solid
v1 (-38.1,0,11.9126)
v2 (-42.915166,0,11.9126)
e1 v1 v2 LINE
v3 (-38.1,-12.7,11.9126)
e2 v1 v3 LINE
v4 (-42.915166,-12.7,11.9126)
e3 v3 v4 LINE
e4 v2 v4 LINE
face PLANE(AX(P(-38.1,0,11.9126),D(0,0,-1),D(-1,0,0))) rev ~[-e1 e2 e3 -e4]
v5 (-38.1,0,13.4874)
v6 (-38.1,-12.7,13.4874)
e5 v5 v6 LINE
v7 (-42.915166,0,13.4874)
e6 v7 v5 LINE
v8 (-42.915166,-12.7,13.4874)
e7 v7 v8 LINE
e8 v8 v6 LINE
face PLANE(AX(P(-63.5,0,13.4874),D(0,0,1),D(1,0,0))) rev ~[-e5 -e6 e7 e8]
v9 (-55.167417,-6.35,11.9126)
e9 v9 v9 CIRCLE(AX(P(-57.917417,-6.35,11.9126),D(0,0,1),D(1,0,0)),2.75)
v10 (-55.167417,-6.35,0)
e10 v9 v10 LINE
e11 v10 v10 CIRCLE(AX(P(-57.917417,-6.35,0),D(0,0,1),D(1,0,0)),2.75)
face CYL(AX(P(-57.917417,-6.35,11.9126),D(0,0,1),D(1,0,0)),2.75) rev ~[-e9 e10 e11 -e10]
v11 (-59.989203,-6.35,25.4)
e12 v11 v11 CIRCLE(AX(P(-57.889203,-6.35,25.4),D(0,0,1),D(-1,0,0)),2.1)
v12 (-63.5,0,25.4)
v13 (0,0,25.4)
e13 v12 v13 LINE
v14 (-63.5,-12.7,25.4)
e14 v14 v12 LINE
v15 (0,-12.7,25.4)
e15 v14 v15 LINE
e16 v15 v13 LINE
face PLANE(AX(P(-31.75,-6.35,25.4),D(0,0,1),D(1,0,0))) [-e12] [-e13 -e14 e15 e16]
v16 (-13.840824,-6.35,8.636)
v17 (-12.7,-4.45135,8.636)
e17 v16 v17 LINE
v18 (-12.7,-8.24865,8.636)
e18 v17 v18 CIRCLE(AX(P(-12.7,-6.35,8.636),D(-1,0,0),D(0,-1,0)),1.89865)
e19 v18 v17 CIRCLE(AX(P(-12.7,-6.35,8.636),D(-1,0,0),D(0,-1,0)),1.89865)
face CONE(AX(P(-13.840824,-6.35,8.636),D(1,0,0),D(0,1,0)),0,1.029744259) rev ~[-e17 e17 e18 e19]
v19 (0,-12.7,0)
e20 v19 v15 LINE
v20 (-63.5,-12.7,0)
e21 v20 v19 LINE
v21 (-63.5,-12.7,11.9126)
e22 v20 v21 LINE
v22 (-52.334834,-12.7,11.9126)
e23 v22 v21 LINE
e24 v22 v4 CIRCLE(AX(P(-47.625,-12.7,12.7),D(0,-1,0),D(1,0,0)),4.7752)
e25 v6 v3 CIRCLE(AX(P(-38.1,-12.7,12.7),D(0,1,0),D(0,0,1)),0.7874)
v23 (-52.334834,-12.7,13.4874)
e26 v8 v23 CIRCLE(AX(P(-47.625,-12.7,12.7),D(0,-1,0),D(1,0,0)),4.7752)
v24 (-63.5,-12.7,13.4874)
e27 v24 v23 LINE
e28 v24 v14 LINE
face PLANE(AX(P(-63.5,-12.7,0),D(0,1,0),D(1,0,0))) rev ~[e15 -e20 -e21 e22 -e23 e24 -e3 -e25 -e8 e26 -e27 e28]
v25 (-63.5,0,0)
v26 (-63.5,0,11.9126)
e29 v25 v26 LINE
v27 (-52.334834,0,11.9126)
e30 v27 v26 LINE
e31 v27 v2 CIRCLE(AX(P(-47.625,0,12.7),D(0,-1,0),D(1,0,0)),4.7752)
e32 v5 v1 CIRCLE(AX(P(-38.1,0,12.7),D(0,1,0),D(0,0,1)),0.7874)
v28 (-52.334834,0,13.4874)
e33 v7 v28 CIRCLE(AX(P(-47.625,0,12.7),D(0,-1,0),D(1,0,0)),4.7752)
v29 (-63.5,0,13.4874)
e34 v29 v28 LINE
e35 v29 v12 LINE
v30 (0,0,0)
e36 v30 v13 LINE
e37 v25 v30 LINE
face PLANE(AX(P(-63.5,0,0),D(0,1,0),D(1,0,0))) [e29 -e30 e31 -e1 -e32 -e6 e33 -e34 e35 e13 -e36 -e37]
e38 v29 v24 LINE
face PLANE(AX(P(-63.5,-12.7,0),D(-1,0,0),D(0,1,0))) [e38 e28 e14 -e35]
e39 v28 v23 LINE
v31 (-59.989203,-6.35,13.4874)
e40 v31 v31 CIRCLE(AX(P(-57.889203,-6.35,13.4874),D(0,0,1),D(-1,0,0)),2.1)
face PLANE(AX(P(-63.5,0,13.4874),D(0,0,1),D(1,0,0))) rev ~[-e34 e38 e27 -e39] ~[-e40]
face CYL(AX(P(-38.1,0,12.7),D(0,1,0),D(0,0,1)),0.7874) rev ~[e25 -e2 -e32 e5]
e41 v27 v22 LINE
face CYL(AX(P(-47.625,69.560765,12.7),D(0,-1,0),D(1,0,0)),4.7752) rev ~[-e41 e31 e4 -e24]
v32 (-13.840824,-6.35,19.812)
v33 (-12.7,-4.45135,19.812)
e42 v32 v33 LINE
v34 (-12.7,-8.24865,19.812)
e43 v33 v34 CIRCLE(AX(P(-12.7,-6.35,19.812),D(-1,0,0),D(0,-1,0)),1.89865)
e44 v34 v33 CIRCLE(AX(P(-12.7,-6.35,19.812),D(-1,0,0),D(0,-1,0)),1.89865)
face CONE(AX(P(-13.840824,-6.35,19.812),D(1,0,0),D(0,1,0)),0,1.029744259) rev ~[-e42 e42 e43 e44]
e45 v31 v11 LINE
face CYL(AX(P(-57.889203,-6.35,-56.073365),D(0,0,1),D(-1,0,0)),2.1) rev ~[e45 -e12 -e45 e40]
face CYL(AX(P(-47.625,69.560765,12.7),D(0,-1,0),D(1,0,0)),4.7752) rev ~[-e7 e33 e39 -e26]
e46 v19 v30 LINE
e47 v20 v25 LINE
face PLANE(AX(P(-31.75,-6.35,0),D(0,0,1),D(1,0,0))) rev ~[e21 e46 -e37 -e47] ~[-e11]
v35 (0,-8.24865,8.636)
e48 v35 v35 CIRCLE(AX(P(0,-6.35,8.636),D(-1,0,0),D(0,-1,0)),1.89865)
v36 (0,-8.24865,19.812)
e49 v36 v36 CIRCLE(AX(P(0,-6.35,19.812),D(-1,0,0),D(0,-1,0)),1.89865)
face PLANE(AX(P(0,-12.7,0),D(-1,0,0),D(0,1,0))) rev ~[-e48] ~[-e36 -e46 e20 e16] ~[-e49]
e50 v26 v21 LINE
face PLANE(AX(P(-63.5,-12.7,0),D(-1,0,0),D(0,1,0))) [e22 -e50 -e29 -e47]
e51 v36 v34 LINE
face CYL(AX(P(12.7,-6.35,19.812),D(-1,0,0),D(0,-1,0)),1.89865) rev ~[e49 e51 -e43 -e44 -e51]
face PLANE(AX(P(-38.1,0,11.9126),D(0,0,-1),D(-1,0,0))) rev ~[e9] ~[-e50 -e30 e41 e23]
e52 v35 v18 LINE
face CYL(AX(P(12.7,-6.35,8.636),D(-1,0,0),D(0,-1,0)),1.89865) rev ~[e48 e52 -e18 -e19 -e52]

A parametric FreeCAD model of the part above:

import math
import FreeCAD as App
import Part
import Sketcher

V = App.Vector
Q = App.Units.Quantity

doc = App.newDocument("Part")
body = doc.addObject("PartDesign::Body", "Body")

sketch1 = body.newObject("Sketcher::SketchObject", "Sketch")
sketch1.AttachmentSupport = (doc.getObject("XY_Plane"), [""])
sketch1.MapMode = "FlatFace"
sketch1.addGeometry([
    Part.LineSegment(V(-64, 0, 0), V(-64, -13, 0)),
    Part.LineSegment(V(-64, -13, 0), V(0, -13, 0)),
    Part.LineSegment(V(0, -13, 0), V(0, 0, 0)),
    Part.LineSegment(V(0, 0, 0), V(-64, 0, 0)),
], False)
sketch1.addConstraint([
    Sketcher.Constraint("Coincident", 0, 2, 1, 1),
    Sketcher.Constraint("Coincident", 1, 2, 2, 1),
    Sketcher.Constraint("Coincident", 2, 2, 3, 1),
    Sketcher.Constraint("Coincident", 3, 2, 0, 1),
    Sketcher.Constraint("Vertical", 0),
    Sketcher.Constraint("Horizontal", 1),
    Sketcher.Constraint("Vertical", 2),
    Sketcher.Constraint("Horizontal", 3),
    Sketcher.Constraint("Coincident", 2, 2, -1, 1),
    Sketcher.Constraint("DistanceX", 1, 1, 1, 2, Q("2.5 in")),
    Sketcher.Constraint("DistanceY", 0, 2, 0, 1, Q("0.5 in")),
])
pad1 = body.newObject("PartDesign::Pad", "Pad")
pad1.Profile = sketch1
pad1.Length = Q("1 in")

sketch2 = body.newObject("Sketcher::SketchObject", "Sketch001")
sketch2.AttachmentSupport = (doc.getObject("YZ_Plane"), [""])
sketch2.MapMode = "FlatFace"
sketch2.addGeometry(Part.Circle(V(-6.3, 19.8, 0), V(0, 0, 1), 1.9), False)
sketch2.addConstraint([
    Sketcher.Constraint("Diameter", 0, Q("0.1495 in")),
    Sketcher.Constraint("DistanceX", 0, 3, -1, 1, Q("0.25 in")),
    Sketcher.Constraint("DistanceY", -1, 1, 0, 3, Q("0.78 in")),
])
doc.recompute()
hole = body.newObject("PartDesign::Hole", "Hole")
hole.Profile = sketch2
hole.ThreadType = "None"
hole.Diameter = Q("0.1495 in")
hole.DepthType = "Dimension"
hole.Depth = Q("0.5 in")
hole.DrillPoint = "Angled"
hole.DrillPointAngle = 118

sketch3 = body.newObject("Sketcher::SketchObject", "Sketch002")
sketch3.AttachmentSupport = (doc.getObject("YZ_Plane"), [""])
sketch3.MapMode = "FlatFace"
sketch3.addGeometry(Part.Circle(V(-6.3, 8.6, 0), V(0, 0, 1), 1.9), False)
sketch3.addConstraint([
    Sketcher.Constraint("Diameter", 0, Q("0.1495 in")),
    Sketcher.Constraint("DistanceX", 0, 3, -1, 1, Q("0.25 in")),
    Sketcher.Constraint("DistanceY", -1, 1, 0, 3, Q("0.34 in")),
])
doc.recompute()
hole2 = body.newObject("PartDesign::Hole", "Hole001")
hole2.Profile = sketch3
hole2.ThreadType = "None"
hole2.Diameter = Q("0.1495 in")
hole2.DepthType = "Dimension"
hole2.Depth = Q("0.5 in")
hole2.DrillPoint = "Angled"
hole2.DrillPointAngle = 118

sketch4 = body.newObject("Sketcher::SketchObject", "Sketch003")
sketch4.AttachmentSupport = (doc.getObject("XZ_Plane"), [""])
sketch4.MapMode = "FlatFace"
sketch4.addGeometry(Part.Circle(V(-47.6, 12.7, 0), V(0, 0, 1), 4.8), False)
sketch4.addConstraint([
    Sketcher.Constraint("Diameter", 0, Q("0.376 in")),
    Sketcher.Constraint("DistanceY", -1, 1, 0, 3, Q("0.5 in")),
    Sketcher.Constraint("DistanceX", 0, 3, -1, 1, Q("1.875 in")),
])
doc.recompute()
hole3 = body.newObject("PartDesign::Hole", "Hole002")
hole3.Profile = sketch4
hole3.ThreadType = "None"
hole3.Diameter = Q("0.376 in")
hole3.DepthType = "ThroughAll"
hole3.Reversed = True

sketch5 = body.newObject("Sketcher::SketchObject", "Sketch004")
sketch5.AttachmentSupport = (doc.getObject("XZ_Plane"), [""])
sketch5.MapMode = "FlatFace"
sketch5.addGeometry([
    Part.ArcOfCircle(Part.Circle(V(-38.1, 12.7, 0), V(0, 0, 1), 0.8), math.radians(-90), math.radians(90)),
    Part.LineSegment(V(-38.1, 11.9, 0), V(-63.5, 11.9, 0)),
    Part.LineSegment(V(-63.5, 11.9, 0), V(-63.5, 13.5, 0)),
    Part.LineSegment(V(-63.5, 13.5, 0), V(-38.1, 13.5, 0)),
], False)
sketch5.addConstraint([
    Sketcher.Constraint("Tangent", 0, 1, 1, 1),
    Sketcher.Constraint("Coincident", 1, 2, 2, 1),
    Sketcher.Constraint("Coincident", 2, 2, 3, 1),
    Sketcher.Constraint("Tangent", 3, 2, 0, 2),
    Sketcher.Constraint("Horizontal", 1),
    Sketcher.Constraint("Vertical", 2),
    Sketcher.Constraint("Horizontal", 3),
    Sketcher.Constraint("DistanceX", 1, 2, 1, 1, Q("1 in")),
    Sketcher.Constraint("Radius", 0, Q("0.031 in")),
    Sketcher.Constraint("DistanceX", 0, 3, -1, 1, Q("1.5 in")),
    Sketcher.Constraint("DistanceY", -1, 1, 0, 3, Q("0.5 in")),
])
pocket1 = body.newObject("PartDesign::Pocket", "Pocket")
pocket1.Profile = sketch5
pocket1.Type = "ThroughAll"
pocket1.Reversed = True

sketch6 = body.newObject("Sketcher::SketchObject", "Sketch005")
sketch6.AttachmentSupport = (doc.getObject("XY_Plane"), [""])
sketch6.MapMode = "FlatFace"
sketch6.AttachmentOffset = App.Placement(V(0, 0, 0.469 * 25.4), App.Rotation())
sketch6.addGeometry(Part.Circle(V(-57.9, -6.3, 0), V(0, 0, 1), 2.8), False)
sketch6.addConstraint([
    Sketcher.Constraint("Diameter", 0, Q("5.5 mm")),
    Sketcher.Constraint("DistanceY", 0, 3, -1, 1, Q("0.25 in")),
    Sketcher.Constraint("DistanceX", 0, 3, -1, 1, Q("57.917417 mm")),
])
pocket2 = body.newObject("PartDesign::Pocket", "Pocket001")
pocket2.Profile = sketch6
pocket2.Type = "ThroughAll"

sketch7 = body.newObject("Sketcher::SketchObject", "Sketch006")
sketch7.AttachmentSupport = (doc.getObject("XY_Plane"), [""])
sketch7.MapMode = "FlatFace"
sketch7.AttachmentOffset = App.Placement(V(0, 0, 0.531 * 25.4), App.Rotation())
sketch7.addGeometry(Part.Circle(V(-57.9, -6.3, 0), V(0, 0, 1), 2.1), False)
sketch7.addConstraint([
    Sketcher.Constraint("Diameter", 0, Q("4.2 mm")),
    Sketcher.Constraint("DistanceY", 0, 3, -1, 1, Q("0.25 in")),
    Sketcher.Constraint("DistanceX", 0, 3, -1, 1, Q("57.889203 mm")),
])
doc.recompute()
hole4 = body.newObject("PartDesign::Hole", "Hole003")
hole4.Profile = sketch7
hole4.ThreadType = "None"
hole4.Diameter = 4.2
hole4.DepthType = "ThroughAll"
hole4.Reversed = True

doc.recompute()
